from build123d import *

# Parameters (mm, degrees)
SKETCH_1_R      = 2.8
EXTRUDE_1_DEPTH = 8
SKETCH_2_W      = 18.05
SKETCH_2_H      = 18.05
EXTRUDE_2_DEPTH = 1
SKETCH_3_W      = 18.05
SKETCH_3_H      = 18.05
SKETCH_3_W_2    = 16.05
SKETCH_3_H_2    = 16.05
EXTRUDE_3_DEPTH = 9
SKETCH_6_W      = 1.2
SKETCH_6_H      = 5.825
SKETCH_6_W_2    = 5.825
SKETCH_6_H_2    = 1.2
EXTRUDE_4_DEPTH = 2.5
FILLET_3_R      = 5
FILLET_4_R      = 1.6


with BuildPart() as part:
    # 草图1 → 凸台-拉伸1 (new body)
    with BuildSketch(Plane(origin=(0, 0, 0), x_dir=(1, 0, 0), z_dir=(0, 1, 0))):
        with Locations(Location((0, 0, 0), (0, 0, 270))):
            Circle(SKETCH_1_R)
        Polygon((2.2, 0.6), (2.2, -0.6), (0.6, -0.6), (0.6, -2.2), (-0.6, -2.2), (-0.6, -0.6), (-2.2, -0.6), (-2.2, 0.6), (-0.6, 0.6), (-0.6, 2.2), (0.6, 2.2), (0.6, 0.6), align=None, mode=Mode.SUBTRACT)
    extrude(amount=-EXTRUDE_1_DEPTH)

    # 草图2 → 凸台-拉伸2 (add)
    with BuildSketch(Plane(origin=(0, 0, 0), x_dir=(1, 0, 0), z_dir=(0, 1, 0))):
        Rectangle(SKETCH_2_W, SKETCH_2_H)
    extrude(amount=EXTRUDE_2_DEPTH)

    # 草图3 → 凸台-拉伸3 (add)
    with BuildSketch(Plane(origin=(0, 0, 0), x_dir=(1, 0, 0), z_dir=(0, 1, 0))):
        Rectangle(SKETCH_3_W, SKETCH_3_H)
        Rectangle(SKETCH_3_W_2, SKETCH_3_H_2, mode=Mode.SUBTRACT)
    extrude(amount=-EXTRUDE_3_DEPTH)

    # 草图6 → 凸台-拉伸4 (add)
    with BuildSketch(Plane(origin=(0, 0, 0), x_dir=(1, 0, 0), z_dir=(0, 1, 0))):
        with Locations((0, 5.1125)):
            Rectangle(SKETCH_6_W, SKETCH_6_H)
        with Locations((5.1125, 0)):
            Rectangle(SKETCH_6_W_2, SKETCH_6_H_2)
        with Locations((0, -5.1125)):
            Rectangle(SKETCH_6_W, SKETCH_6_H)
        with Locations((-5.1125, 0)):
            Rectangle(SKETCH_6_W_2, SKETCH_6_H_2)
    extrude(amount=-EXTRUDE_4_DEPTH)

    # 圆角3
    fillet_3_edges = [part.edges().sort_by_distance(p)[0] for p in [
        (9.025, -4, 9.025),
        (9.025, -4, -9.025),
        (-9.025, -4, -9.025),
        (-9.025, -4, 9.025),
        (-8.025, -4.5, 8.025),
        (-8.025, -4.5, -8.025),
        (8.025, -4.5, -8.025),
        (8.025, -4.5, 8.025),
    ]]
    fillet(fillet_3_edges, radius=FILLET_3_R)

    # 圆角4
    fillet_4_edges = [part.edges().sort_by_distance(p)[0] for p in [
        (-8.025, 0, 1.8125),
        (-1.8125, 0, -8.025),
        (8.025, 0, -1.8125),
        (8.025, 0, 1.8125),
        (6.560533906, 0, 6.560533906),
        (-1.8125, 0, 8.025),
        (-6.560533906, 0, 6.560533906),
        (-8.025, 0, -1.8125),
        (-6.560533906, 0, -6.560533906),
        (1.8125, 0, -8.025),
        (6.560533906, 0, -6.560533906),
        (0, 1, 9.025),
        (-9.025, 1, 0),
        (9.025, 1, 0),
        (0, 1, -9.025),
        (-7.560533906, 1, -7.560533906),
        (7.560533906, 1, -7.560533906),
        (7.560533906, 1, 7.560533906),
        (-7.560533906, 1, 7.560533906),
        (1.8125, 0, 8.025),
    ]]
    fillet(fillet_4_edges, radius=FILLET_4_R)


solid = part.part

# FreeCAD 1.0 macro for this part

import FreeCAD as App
import Part
import Sketcher


def edges_at(feature, points):
    """Names of the edges that pass closest to the given points."""
    edges = feature.Shape.Edges
    near = lambda p: min(range(len(edges)), key=lambda i: edges[i].distToShape(Part.Vertex(*p))[0])
    return sorted({f"Edge{near(p) + 1}" for p in points})

doc = App.newDocument("Part")
body = doc.addObject("PartDesign::Body", "Body")

sketch1 = body.newObject("Sketcher::SketchObject", "Sketch")
sketch1.AttachmentSupport = (doc.getObject("XZ_Plane"), [""])
sketch1.MapMode = "FlatFace"
sketch1.addGeometry([
    Part.Circle(App.Vector(0, 0, 0), App.Vector(0, 0, 1), 2.8),
    Part.LineSegment(App.Vector(0.6, -0.6, 0), App.Vector(2.2, -0.6, 0)),
    Part.LineSegment(App.Vector(2.2, -0.6, 0), App.Vector(2.2, 0.6, 0)),
    Part.LineSegment(App.Vector(2.2, 0.6, 0), App.Vector(0.6, 0.6, 0)),
    Part.LineSegment(App.Vector(0.6, 0.6, 0), App.Vector(0.6, 2.2, 0)),
    Part.LineSegment(App.Vector(0.6, 2.2, 0), App.Vector(-0.6, 2.2, 0)),
    Part.LineSegment(App.Vector(-0.6, 2.2, 0), App.Vector(-0.6, 0.6, 0)),
    Part.LineSegment(App.Vector(-0.6, 0.6, 0), App.Vector(-2.2, 0.6, 0)),
    Part.LineSegment(App.Vector(-2.2, 0.6, 0), App.Vector(-2.2, -0.6, 0)),
    Part.LineSegment(App.Vector(-2.2, -0.6, 0), App.Vector(-0.6, -0.6, 0)),
    Part.LineSegment(App.Vector(-0.6, -0.6, 0), App.Vector(-0.6, -2.2, 0)),
    Part.LineSegment(App.Vector(-0.6, -2.2, 0), App.Vector(0.6, -2.2, 0)),
    Part.LineSegment(App.Vector(0.6, -2.2, 0), App.Vector(0.6, -0.6, 0)),
], False)
sketch1.addConstraint([
    Sketcher.Constraint("Coincident", 1, 2, 2, 1),
    Sketcher.Constraint("Coincident", 2, 2, 3, 1),
    Sketcher.Constraint("Coincident", 3, 2, 4, 1),
    Sketcher.Constraint("Coincident", 4, 2, 5, 1),
    Sketcher.Constraint("Coincident", 5, 2, 6, 1),
    Sketcher.Constraint("Coincident", 6, 2, 7, 1),
    Sketcher.Constraint("Coincident", 7, 2, 8, 1),
    Sketcher.Constraint("Coincident", 8, 2, 9, 1),
    Sketcher.Constraint("Coincident", 9, 2, 10, 1),
    Sketcher.Constraint("Coincident", 10, 2, 11, 1),
    Sketcher.Constraint("Coincident", 11, 2, 12, 1),
    Sketcher.Constraint("Coincident", 12, 2, 1, 1),
    Sketcher.Constraint("Horizontal", 1),
    Sketcher.Constraint("Vertical", 2),
    Sketcher.Constraint("Horizontal", 3),
    Sketcher.Constraint("Vertical", 4),
    Sketcher.Constraint("Horizontal", 5),
    Sketcher.Constraint("Vertical", 6),
    Sketcher.Constraint("Horizontal", 7),
    Sketcher.Constraint("Vertical", 8),
    Sketcher.Constraint("Horizontal", 9),
    Sketcher.Constraint("Vertical", 10),
    Sketcher.Constraint("Horizontal", 11),
    Sketcher.Constraint("Vertical", 12),
    Sketcher.Constraint("Coincident", 0, 3, -1, 1),
    Sketcher.Constraint("Symmetric", 1, 2, 7, 2, -1, 1),
    Sketcher.Constraint("Symmetric", 3, 2, 9, 2, -1, 1),
    Sketcher.Constraint("Symmetric", 5, 2, 11, 2, -1, 1),
    Sketcher.Constraint("Symmetric", 3, 2, 6, 2, -2),
    Sketcher.Constraint("Equal", 11, 2),
    Sketcher.Constraint("Equal", 9, 4),
    Sketcher.Constraint("Diameter", 0, 5.6),
    Sketcher.Constraint("DistanceX", 1, 1, 1, 2, 1.6),
    Sketcher.Constraint("DistanceX", 5, 2, 5, 1, 1.2),
])
pad1 = body.newObject("PartDesign::Pad", "Pad")
pad1.Profile = sketch1
pad1.Length = 8

sketch2 = body.newObject("Sketcher::SketchObject", "Sketch001")
sketch2.AttachmentSupport = (doc.getObject("XZ_Plane"), [""])
sketch2.MapMode = "FlatFace"
sketch2.addGeometry([
    Part.LineSegment(App.Vector(-9, -9, 0), App.Vector(-9, 9, 0)),
    Part.LineSegment(App.Vector(-9, 9, 0), App.Vector(9, 9, 0)),
    Part.LineSegment(App.Vector(9, 9, 0), App.Vector(9, -9, 0)),
    Part.LineSegment(App.Vector(9, -9, 0), App.Vector(-9, -9, 0)),
], False)
sketch2.addConstraint([
    Sketcher.Constraint("Coincident", 0, 2, 1, 1),
    Sketcher.Constraint("Coincident", 1, 2, 2, 1),
    Sketcher.Constraint("Coincident", 2, 2, 3, 1),
    Sketcher.Constraint("Coincident", 3, 2, 0, 1),
    Sketcher.Constraint("Vertical", 0),
    Sketcher.Constraint("Horizontal", 1),
    Sketcher.Constraint("Vertical", 2),
    Sketcher.Constraint("Horizontal", 3),
    Sketcher.Constraint("Symmetric", 0, 2, 2, 2, -1, 1),
    Sketcher.Constraint("Equal", 3, 0),
    Sketcher.Constraint("DistanceX", 1, 1, 1, 2, 18.05),
])
pad2 = body.newObject("PartDesign::Pad", "Pad001")
pad2.Profile = sketch2
pad2.Length = 1
pad2.Reversed = True

sketch3 = body.newObject("Sketcher::SketchObject", "Sketch002")
sketch3.AttachmentSupport = (doc.getObject("XZ_Plane"), [""])
sketch3.MapMode = "FlatFace"
sketch3.addGeometry([
    Part.LineSegment(App.Vector(-9, -9, 0), App.Vector(-9, 9, 0)),
    Part.LineSegment(App.Vector(-9, 9, 0), App.Vector(9, 9, 0)),
    Part.LineSegment(App.Vector(9, 9, 0), App.Vector(9, -9, 0)),
    Part.LineSegment(App.Vector(9, -9, 0), App.Vector(-9, -9, 0)),
    Part.LineSegment(App.Vector(8, 8, 0), App.Vector(-8, 8, 0)),
    Part.LineSegment(App.Vector(-8, 8, 0), App.Vector(-8, -8, 0)),
    Part.LineSegment(App.Vector(-8, -8, 0), App.Vector(8, -8, 0)),
    Part.LineSegment(App.Vector(8, -8, 0), App.Vector(8, 8, 0)),
], False)
sketch3.addConstraint([
    Sketcher.Constraint("Coincident", 0, 2, 1, 1),
    Sketcher.Constraint("Coincident", 1, 2, 2, 1),
    Sketcher.Constraint("Coincident", 2, 2, 3, 1),
    Sketcher.Constraint("Coincident", 3, 2, 0, 1),
    Sketcher.Constraint("Coincident", 4, 2, 5, 1),
    Sketcher.Constraint("Coincident", 5, 2, 6, 1),
    Sketcher.Constraint("Coincident", 6, 2, 7, 1),
    Sketcher.Constraint("Coincident", 7, 2, 4, 1),
    Sketcher.Constraint("Vertical", 0),
    Sketcher.Constraint("Horizontal", 1),
    Sketcher.Constraint("Vertical", 2),
    Sketcher.Constraint("Horizontal", 3),
    Sketcher.Constraint("Horizontal", 4),
    Sketcher.Constraint("Vertical", 5),
    Sketcher.Constraint("Horizontal", 6),
    Sketcher.Constraint("Vertical", 7),
    Sketcher.Constraint("Symmetric", 0, 2, 2, 2, -1, 1),
    Sketcher.Constraint("Symmetric", 4, 2, 6, 2, -1, 1),
    Sketcher.Constraint("Equal", 3, 0),
    Sketcher.Constraint("Equal", 6, 5),
    Sketcher.Constraint("DistanceX", 0, 2, 4, 2, 1.0),
    Sketcher.Constraint("DistanceX", 1, 1, 1, 2, 18.05),
])
pad3 = body.newObject("PartDesign::Pad", "Pad002")
pad3.Profile = sketch3
pad3.Length = 9

sketch4 = body.newObject("Sketcher::SketchObject", "Sketch003")
sketch4.AttachmentSupport = (doc.getObject("XZ_Plane"), [""])
sketch4.MapMode = "FlatFace"
sketch4.addGeometry([
    Part.LineSegment(App.Vector(-0.6, -8, 0), App.Vector(-0.6, -2.2, 0)),
    Part.LineSegment(App.Vector(-0.6, -2.2, 0), App.Vector(0.6, -2.2, 0)),
    Part.LineSegment(App.Vector(0.6, -2.2, 0), App.Vector(0.6, -8, 0)),
    Part.LineSegment(App.Vector(0.6, -8, 0), App.Vector(-0.6, -8, 0)),
    Part.LineSegment(App.Vector(2.2, -0.6, 0), App.Vector(2.2, 0.6, 0)),
    Part.LineSegment(App.Vector(2.2, 0.6, 0), App.Vector(8, 0.6, 0)),
    Part.LineSegment(App.Vector(8, 0.6, 0), App.Vector(8, -0.6, 0)),
    Part.LineSegment(App.Vector(8, -0.6, 0), App.Vector(2.2, -0.6, 0)),
    Part.LineSegment(App.Vector(-0.6, 2.2, 0), App.Vector(-0.6, 8, 0)),
    Part.LineSegment(App.Vector(-0.6, 8, 0), App.Vector(0.6, 8, 0)),
    Part.LineSegment(App.Vector(0.6, 8, 0), App.Vector(0.6, 2.2, 0)),
    Part.LineSegment(App.Vector(0.6, 2.2, 0), App.Vector(-0.6, 2.2, 0)),
    Part.LineSegment(App.Vector(-8, -0.6, 0), App.Vector(-8, 0.6, 0)),
    Part.LineSegment(App.Vector(-8, 0.6, 0), App.Vector(-2.2, 0.6, 0)),
    Part.LineSegment(App.Vector(-2.2, 0.6, 0), App.Vector(-2.2, -0.6, 0)),
    Part.LineSegment(App.Vector(-2.2, -0.6, 0), App.Vector(-8, -0.6, 0)),
], False)
sketch4.addConstraint([
    Sketcher.Constraint("Coincident", 0, 2, 1, 1),
    Sketcher.Constraint("Coincident", 1, 2, 2, 1),
    Sketcher.Constraint("Coincident", 2, 2, 3, 1),
    Sketcher.Constraint("Coincident", 3, 2, 0, 1),
    Sketcher.Constraint("Coincident", 4, 2, 5, 1),
    Sketcher.Constraint("Coincident", 5, 2, 6, 1),
    Sketcher.Constraint("Coincident", 6, 2, 7, 1),
    Sketcher.Constraint("Coincident", 7, 2, 4, 1),
    Sketcher.Constraint("Coincident", 8, 2, 9, 1),
    Sketcher.Constraint("Coincident", 9, 2, 10, 1),
    Sketcher.Constraint("Coincident", 10, 2, 11, 1),
    Sketcher.Constraint("Coincident", 11, 2, 8, 1),
    Sketcher.Constraint("Coincident", 12, 2, 13, 1),
    Sketcher.Constraint("Coincident", 13, 2, 14, 1),
    Sketcher.Constraint("Coincident", 14, 2, 15, 1),
    Sketcher.Constraint("Coincident", 15, 2, 12, 1),
    Sketcher.Constraint("Vertical", 0),
    Sketcher.Constraint("Horizontal", 1),
    Sketcher.Constraint("Vertical", 2),
    Sketcher.Constraint("Horizontal", 3),
    Sketcher.Constraint("Vertical", 4),
    Sketcher.Constraint("Horizontal", 5),
    Sketcher.Constraint("Vertical", 6),
    Sketcher.Constraint("Horizontal", 7),
    Sketcher.Constraint("Vertical", 8),
    Sketcher.Constraint("Horizontal", 9),
    Sketcher.Constraint("Vertical", 10),
    Sketcher.Constraint("Horizontal", 11),
    Sketcher.Constraint("Vertical", 12),
    Sketcher.Constraint("Horizontal", 13),
    Sketcher.Constraint("Vertical", 14),
    Sketcher.Constraint("Horizontal", 15),
    Sketcher.Constraint("Symmetric", 2, 2, 8, 2, -1, 1),
    Sketcher.Constraint("Symmetric", 0, 2, 10, 2, -1, 1),
    Sketcher.Constraint("Symmetric", 6, 2, 12, 2, -1, 1),
    Sketcher.Constraint("Symmetric", 4, 2, 14, 2, -1, 1),
    Sketcher.Constraint("Horizontal", 5, 2, 12, 2),
    Sketcher.Constraint("Vertical", 3, 2, 8, 2),
    Sketcher.Constraint("Equal", 15, 0),
    Sketcher.Constraint("Equal", 11, 4),
    Sketcher.Constraint("DistanceX", 1, 1, 1, 2, 1.2),
    Sketcher.Constraint("DistanceY", 0, 2, -1, 1, 2.2),
    Sketcher.Constraint("DistanceX", -1, 1, 4, 2, 2.2),
    Sketcher.Constraint("DistanceX", 5, 1, 5, 2, 5.825),
])
pad4 = body.newObject("PartDesign::Pad", "Pad003")
pad4.Profile = sketch4
pad4.Length = 2.5
doc.recompute()

fillet = body.newObject("PartDesign::Fillet", "Fillet")
fillet.Base = (pad4, edges_at(pad4, [
    (9.025, -4, 9.025),
    (9.025, -4, -9.025),
    (-9.025, -4, -9.025),
    (-9.025, -4, 9.025),
    (-8.025, -4.5, 8.025),
    (-8.025, -4.5, -8.025),
    (8.025, -4.5, -8.025),
    (8.025, -4.5, 8.025),
]))
fillet.Radius = 5
doc.recompute()

fillet2 = body.newObject("PartDesign::Fillet", "Fillet001")
fillet2.Base = (fillet, edges_at(fillet, [
    (-8.025, 0, 1.812),
    (-1.812, 0, -8.025),
    (8.025, 0, -1.812),
    (8.025, 0, 1.812),
    (6.561, 0, 6.561),
    (-1.812, 0, 8.025),
    (-6.561, 0, 6.561),
    (-8.025, 0, -1.812),
    (-6.561, 0, -6.561),
    (1.812, 0, -8.025),
    (6.561, 0, -6.561),
    (0, 1, 9.025),
    (-9.025, 1, 0),
    (9.025, 1, 0),
    (0, 1, -9.025),
    (-7.561, 1, -7.561),
    (7.561, 1, -7.561),
    (7.561, 1, 7.561),
    (-7.561, 1, 7.561),
    (1.812, 0, 8.025),
]))
fillet2.Radius = 1.6

doc.recompute()
